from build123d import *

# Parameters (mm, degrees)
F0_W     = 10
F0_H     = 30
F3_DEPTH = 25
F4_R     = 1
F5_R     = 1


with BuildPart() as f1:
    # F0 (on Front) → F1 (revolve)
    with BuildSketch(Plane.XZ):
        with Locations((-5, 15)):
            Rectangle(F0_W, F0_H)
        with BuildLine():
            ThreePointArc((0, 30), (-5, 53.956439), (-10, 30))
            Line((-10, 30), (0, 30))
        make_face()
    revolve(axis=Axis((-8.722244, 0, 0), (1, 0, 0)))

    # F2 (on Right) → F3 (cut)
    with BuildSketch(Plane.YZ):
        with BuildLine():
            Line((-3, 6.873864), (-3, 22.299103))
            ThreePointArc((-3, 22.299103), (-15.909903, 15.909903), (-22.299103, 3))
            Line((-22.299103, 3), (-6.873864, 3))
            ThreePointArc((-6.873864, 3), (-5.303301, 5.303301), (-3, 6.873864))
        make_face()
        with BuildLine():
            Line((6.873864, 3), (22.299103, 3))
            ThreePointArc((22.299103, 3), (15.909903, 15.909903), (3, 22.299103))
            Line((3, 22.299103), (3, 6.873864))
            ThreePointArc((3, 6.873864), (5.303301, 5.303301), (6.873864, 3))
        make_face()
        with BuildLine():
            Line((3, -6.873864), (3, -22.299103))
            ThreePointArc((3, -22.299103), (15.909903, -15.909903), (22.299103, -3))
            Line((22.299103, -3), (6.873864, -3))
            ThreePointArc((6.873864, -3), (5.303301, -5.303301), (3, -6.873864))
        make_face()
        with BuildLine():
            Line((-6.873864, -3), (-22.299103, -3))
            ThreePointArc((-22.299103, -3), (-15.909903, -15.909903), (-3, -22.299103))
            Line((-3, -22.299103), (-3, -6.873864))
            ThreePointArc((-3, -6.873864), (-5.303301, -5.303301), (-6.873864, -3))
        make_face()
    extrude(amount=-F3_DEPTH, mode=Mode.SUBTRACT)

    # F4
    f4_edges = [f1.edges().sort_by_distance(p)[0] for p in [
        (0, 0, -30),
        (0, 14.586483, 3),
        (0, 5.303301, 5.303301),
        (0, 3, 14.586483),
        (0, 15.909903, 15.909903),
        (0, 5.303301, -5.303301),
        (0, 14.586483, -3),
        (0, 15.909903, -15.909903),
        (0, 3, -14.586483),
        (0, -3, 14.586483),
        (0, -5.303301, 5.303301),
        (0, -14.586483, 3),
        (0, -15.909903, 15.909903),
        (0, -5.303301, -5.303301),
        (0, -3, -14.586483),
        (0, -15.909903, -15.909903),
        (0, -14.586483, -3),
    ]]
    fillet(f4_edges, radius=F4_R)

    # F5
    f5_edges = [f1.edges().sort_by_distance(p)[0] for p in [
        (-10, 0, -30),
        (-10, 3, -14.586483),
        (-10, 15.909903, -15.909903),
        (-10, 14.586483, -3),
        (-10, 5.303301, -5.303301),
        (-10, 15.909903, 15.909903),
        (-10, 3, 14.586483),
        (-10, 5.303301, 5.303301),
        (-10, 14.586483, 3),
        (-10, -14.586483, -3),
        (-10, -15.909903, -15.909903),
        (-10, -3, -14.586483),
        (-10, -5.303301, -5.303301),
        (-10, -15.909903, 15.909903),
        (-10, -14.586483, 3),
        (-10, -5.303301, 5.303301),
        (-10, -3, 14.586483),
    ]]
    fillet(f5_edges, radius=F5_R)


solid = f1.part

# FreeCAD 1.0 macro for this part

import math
import FreeCAD as App
import Part
import Sketcher


def edges_at(feature, points):
    """Names of the edges that pass closest to the given points."""
    edges = feature.Shape.Edges
    near = lambda p: min(range(len(edges)), key=lambda i: edges[i].distToShape(Part.Vertex(*p))[0])
    return sorted({f"Edge{near(p) + 1}" for p in points})

doc = App.newDocument("Part")
body = doc.addObject("PartDesign::Body", "Body")

sketch1 = body.newObject("Sketcher::SketchObject", "Sketch")
sketch1.AttachmentSupport = (doc.getObject("XZ_Plane"), [""])
sketch1.MapMode = "FlatFace"
sketch1.addGeometry([
    Part.LineSegment(App.Vector(-10, 30, 0), App.Vector(-10, 0, 0)),
    Part.LineSegment(App.Vector(-10, 0, 0), App.Vector(0, 0, 0)),
    Part.LineSegment(App.Vector(0, 0, 0), App.Vector(0, 30, 0)),
    Part.ArcOfCircle(Part.Circle(App.Vector(-5, 41, 0), App.Vector(0, 0, 1), 12), math.radians(-66), math.radians(246)),
], False)
sketch1.addConstraint([
    Sketcher.Constraint("Coincident", 0, 2, 1, 1),
    Sketcher.Constraint("Coincident", 1, 2, 2, 1),
    Sketcher.Constraint("Coincident", 2, 2, 3, 1),
    Sketcher.Constraint("Coincident", 3, 2, 0, 1),
    Sketcher.Constraint("Vertical", 0),
    Sketcher.Constraint("Horizontal", 1),
    Sketcher.Constraint("Vertical", 2),
    Sketcher.Constraint("Coincident", 1, 2, -1, 1),
    Sketcher.Constraint("Horizontal", 2, 2, 3, 2),
    Sketcher.Constraint("Radius", 3, 12.5),
    Sketcher.Constraint("DistanceX", 1, 1, 1, 2, 10.0),
    Sketcher.Constraint("DistanceY", 0, 2, 0, 1, 30.0),
])
revolution = body.newObject("PartDesign::Revolution", "Revolution")
revolution.Profile = sketch1
revolution.ReferenceAxis = (sketch1, ["H_Axis"])
revolution.Angle = 360

sketch2 = body.newObject("Sketcher::SketchObject", "Sketch001")
sketch2.AttachmentSupport = (doc.getObject("YZ_Plane"), [""])
sketch2.MapMode = "FlatFace"
sketch2.addGeometry([
    Part.LineSegment(App.Vector(-3, 7, 0), App.Vector(-3, 22, 0)),
    Part.ArcOfCircle(Part.Circle(App.Vector(0, 0, 0), App.Vector(0, 0, 1), 22), math.radians(98), math.radians(172)),
    Part.LineSegment(App.Vector(-22, 3, 0), App.Vector(-7, 3, 0)),
    Part.ArcOfCircle(Part.Circle(App.Vector(0, 0, 0), App.Vector(0, 0, 1), 8), math.radians(114), math.radians(156)),
    Part.LineSegment(App.Vector(7, 3, 0), App.Vector(22, 3, 0)),
    Part.ArcOfCircle(Part.Circle(App.Vector(0, 0, 0), App.Vector(0, 0, 1), 22), math.radians(8), math.radians(82)),
    Part.LineSegment(App.Vector(3, 22, 0), App.Vector(3, 7, 0)),
    Part.ArcOfCircle(Part.Circle(App.Vector(0, 0, 0), App.Vector(0, 0, 1), 8), math.radians(24), math.radians(66)),
    Part.LineSegment(App.Vector(3, -7, 0), App.Vector(3, -22, 0)),
    Part.ArcOfCircle(Part.Circle(App.Vector(0, 0, 0), App.Vector(0, 0, 1), 22), math.radians(-82), math.radians(-8)),
    Part.LineSegment(App.Vector(22, -3, 0), App.Vector(7, -3, 0)),
    Part.ArcOfCircle(Part.Circle(App.Vector(0, 0, 0), App.Vector(0, 0, 1), 8), math.radians(-66), math.radians(-24)),
    Part.LineSegment(App.Vector(-7, -3, 0), App.Vector(-22, -3, 0)),
    Part.ArcOfCircle(Part.Circle(App.Vector(0, 0, 0), App.Vector(0, 0, 1), 22), math.radians(-172), math.radians(-98)),
    Part.LineSegment(App.Vector(-3, -22, 0), App.Vector(-3, -7, 0)),
    Part.ArcOfCircle(Part.Circle(App.Vector(0, 0, 0), App.Vector(0, 0, 1), 8), math.radians(-156), math.radians(-114)),
], False)
sketch2.addConstraint([
    Sketcher.Constraint("Coincident", 0, 2, 1, 1),
    Sketcher.Constraint("Coincident", 1, 2, 2, 1),
    Sketcher.Constraint("Coincident", 2, 2, 3, 2),
    Sketcher.Constraint("Coincident", 3, 1, 0, 1),
    Sketcher.Constraint("Coincident", 4, 2, 5, 1),
    Sketcher.Constraint("Coincident", 5, 2, 6, 1),
    Sketcher.Constraint("Coincident", 6, 2, 7, 2),
    Sketcher.Constraint("Coincident", 7, 1, 4, 1),
    Sketcher.Constraint("Coincident", 8, 2, 9, 1),
    Sketcher.Constraint("Coincident", 9, 2, 10, 1),
    Sketcher.Constraint("Coincident", 10, 2, 11, 2),
    Sketcher.Constraint("Coincident", 11, 1, 8, 1),
    Sketcher.Constraint("Coincident", 12, 2, 13, 1),
    Sketcher.Constraint("Coincident", 13, 2, 14, 1),
    Sketcher.Constraint("Coincident", 14, 2, 15, 2),
    Sketcher.Constraint("Coincident", 15, 1, 12, 1),
    Sketcher.Constraint("Vertical", 0),
    Sketcher.Constraint("Horizontal", 2),
    Sketcher.Constraint("Horizontal", 4),
    Sketcher.Constraint("Vertical", 6),
    Sketcher.Constraint("Vertical", 8),
    Sketcher.Constraint("Horizontal", 10),
    Sketcher.Constraint("Horizontal", 12),
    Sketcher.Constraint("Vertical", 14),
    Sketcher.Constraint("Coincident", 1, 3, -1, 1),
    Sketcher.Constraint("Coincident", 3, 3, -1, 1),
    Sketcher.Constraint("Coincident", 5, 3, -1, 1),
    Sketcher.Constraint("Coincident", 7, 3, -1, 1),
    Sketcher.Constraint("Coincident", 9, 3, -1, 1),
    Sketcher.Constraint("Coincident", 11, 3, -1, 1),
    Sketcher.Constraint("Coincident", 13, 3, -1, 1),
    Sketcher.Constraint("Coincident", 15, 3, -1, 1),
    Sketcher.Constraint("Equal", 1, 5),
    Sketcher.Constraint("Equal", 3, 7),
    Sketcher.Constraint("Equal", 5, 9),
    Sketcher.Constraint("Equal", 7, 11),
    Sketcher.Constraint("Equal", 9, 13),
    Sketcher.Constraint("Equal", 11, 15),
    Sketcher.Constraint("Horizontal", 2, 2, 4, 2),
    Sketcher.Constraint("Horizontal", 0, 2, 5, 2),
    Sketcher.Constraint("Horizontal", 10, 2, 12, 2),
    Sketcher.Constraint("Horizontal", 8, 2, 13, 2),
    Sketcher.Constraint("Vertical", 6, 2, 8, 2),
    Sketcher.Constraint("Vertical", 4, 2, 9, 2),
    Sketcher.Constraint("Equal", 12, 0),
    Sketcher.Constraint("DistanceX", 0, 2, -1, 1, 3.0),
    Sketcher.Constraint("Radius", 1, 22.499997),
    Sketcher.Constraint("Radius", 3, 7.500003),
])
pocket1 = body.newObject("PartDesign::Pocket", "Pocket")
pocket1.Profile = sketch2
pocket1.Length = 25
doc.recompute()

fillet = body.newObject("PartDesign::Fillet", "Fillet")
fillet.Base = (pocket1, edges_at(pocket1, [
    (0, 0, -30),
    (0, 14.586, 3),
    (0, 5.303, 5.303),
    (0, 3, 14.586),
    (0, 15.91, 15.91),
    (0, 5.303, -5.303),
    (0, 14.586, -3),
    (0, 15.91, -15.91),
    (0, 3, -14.586),
    (0, -3, 14.586),
    (0, -5.303, 5.303),
    (0, -14.586, 3),
    (0, -15.91, 15.91),
    (0, -5.303, -5.303),
    (0, -3, -14.586),
    (0, -15.91, -15.91),
    (0, -14.586, -3),
]))
fillet.Radius = 1
doc.recompute()

fillet2 = body.newObject("PartDesign::Fillet", "Fillet001")
fillet2.Base = (fillet, edges_at(fillet, [
    (-10, 0, -30),
    (-10, 3, -14.586),
    (-10, 15.91, -15.91),
    (-10, 14.586, -3),
    (-10, 5.303, -5.303),
    (-10, 15.91, 15.91),
    (-10, 3, 14.586),
    (-10, 5.303, 5.303),
    (-10, 14.586, 3),
    (-10, -14.586, -3),
    (-10, -15.91, -15.91),
    (-10, -3, -14.586),
    (-10, -5.303, -5.303),
    (-10, -15.91, 15.91),
    (-10, -14.586, 3),
    (-10, -5.303, 5.303),
    (-10, -3, 14.586),
]))
fillet2.Radius = 1

doc.recompute()
